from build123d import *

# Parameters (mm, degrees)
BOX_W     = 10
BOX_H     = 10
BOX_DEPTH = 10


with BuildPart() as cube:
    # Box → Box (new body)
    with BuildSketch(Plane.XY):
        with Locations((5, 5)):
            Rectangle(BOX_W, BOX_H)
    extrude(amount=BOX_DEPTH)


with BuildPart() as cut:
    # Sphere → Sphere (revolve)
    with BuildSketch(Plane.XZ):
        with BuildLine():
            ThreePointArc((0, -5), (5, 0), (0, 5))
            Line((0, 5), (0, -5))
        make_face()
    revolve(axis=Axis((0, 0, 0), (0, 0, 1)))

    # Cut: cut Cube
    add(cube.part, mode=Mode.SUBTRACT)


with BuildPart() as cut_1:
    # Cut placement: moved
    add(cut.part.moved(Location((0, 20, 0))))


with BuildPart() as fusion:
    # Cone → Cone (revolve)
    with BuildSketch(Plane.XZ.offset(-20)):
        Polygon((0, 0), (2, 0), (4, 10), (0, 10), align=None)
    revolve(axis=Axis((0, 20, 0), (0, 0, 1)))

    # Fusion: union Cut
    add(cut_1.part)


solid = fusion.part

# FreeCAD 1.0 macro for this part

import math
import FreeCAD as App
import Part
import Sketcher

V = App.Vector

doc = App.newDocument("Part")
params = doc.addObject("Spreadsheet::Sheet", "Params")
for row, (alias, value) in enumerate([
    ("sketch1_width", "10 mm"),
    ("pad1_length", "10 mm"),
    ("sketch2_radius", "5 mm"),
    ("revolution_angle", "360 deg"),
    ("sketch3_width", "2 mm"),
    ("sketch3_width2", "4 mm"),
    ("sketch3_height", "10 mm"),
    ("revolution2_angle", "360 deg"),
], start=1):
    params.set(f"A{row}", alias)
    params.set(f"B{row}", "=" + value)
    params.setAlias(f"B{row}", alias)

body = doc.addObject("PartDesign::Body", "Body")

# Sketch on XY plane
sketch1 = body.newObject("Sketcher::SketchObject", "Sketch")
sketch1.AttachmentSupport = (doc.getObject("XY_Plane"), [""])
sketch1.MapMode = "FlatFace"
sketch1.addGeometry([
    Part.LineSegment(V(0, 10, 0), V(0, 0, 0)),
    Part.LineSegment(V(0, 0, 0), V(10, 0, 0)),
    Part.LineSegment(V(10, 0, 0), V(10, 10, 0)),
    Part.LineSegment(V(10, 10, 0), V(0, 10, 0)),
], False)
sketch1.addConstraint([
    Sketcher.Constraint("Coincident", 0, 2, 1, 1),
    Sketcher.Constraint("Coincident", 1, 2, 2, 1),
    Sketcher.Constraint("Coincident", 2, 2, 3, 1),
    Sketcher.Constraint("Coincident", 3, 2, 0, 1),
    Sketcher.Constraint("Vertical", 0),
    Sketcher.Constraint("Horizontal", 1),
    Sketcher.Constraint("Vertical", 2),
    Sketcher.Constraint("Horizontal", 3),
    Sketcher.Constraint("Coincident", 0, 2, -1, 1),
    Sketcher.Constraint("Equal", 3, 0),
    Sketcher.Constraint("DistanceX", 1, 1, 1, 2, 10.0),
])
sketch1.setExpression("Constraints[10]", "Params.sketch1_width")
pad1 = body.newObject("PartDesign::Pad", "Pad")
pad1.Profile = sketch1
pad1.setExpression("Length", "Params.pad1_length")
body2 = doc.addObject("PartDesign::Body", "Body001")

# Sketch on XZ plane
sketch2 = body2.newObject("Sketcher::SketchObject", "Sketch001")
sketch2.AttachmentSupport = (doc.getObject("XZ_Plane001"), [""])
sketch2.MapMode = "FlatFace"
sketch2.addGeometry([
    Part.ArcOfCircle(Part.Circle(V(0, 0, 0), V(0, 0, 1), 5), math.radians(-90), math.radians(90)),
    Part.LineSegment(V(0, 5, 0), V(0, -5, 0)),
], False)
sketch2.addConstraint([
    Sketcher.Constraint("Coincident", 0, 1, 1, 2),
    Sketcher.Constraint("Coincident", 1, 1, 0, 2),
    Sketcher.Constraint("Vertical", 1),
    Sketcher.Constraint("Coincident", 0, 3, -1, 1),
    Sketcher.Constraint("PointOnObject", 0, 1, -2),
    Sketcher.Constraint("Radius", 0, 5.0),
])
sketch2.setExpression("Constraints[5]", "Params.sketch2_radius")
revolution = body2.newObject("PartDesign::Revolution", "Revolution")
revolution.Profile = sketch2
revolution.ReferenceAxis = (sketch2, ["V_Axis"])
revolution.setExpression("Angle", "Params.revolution_angle")
doc.recompute()

boolean = body2.newObject("PartDesign::Boolean", "Boolean")
boolean.Type = "Cut"
boolean.addObjects([body])
body3 = doc.addObject("PartDesign::Body", "Body002")
doc.recompute()

body2.Placement = App.Placement(V(0, 20, 0), App.Rotation(V(0, 0, 1), 0))
boolean2 = body3.newObject("PartDesign::Boolean", "Boolean001")
boolean2.Type = "Fuse"
boolean2.addObjects([body2])
body4 = doc.addObject("PartDesign::Body", "Body003")

# Sketch on XZ plane
sketch3 = body4.newObject("Sketcher::SketchObject", "Sketch002")
sketch3.AttachmentSupport = (doc.getObject("XZ_Plane003"), [""])
sketch3.MapMode = "FlatFace"
sketch3.AttachmentOffset = App.Placement(V(0, 0, -20), App.Rotation())
sketch3.addGeometry([
    Part.LineSegment(V(0, 0, 0), V(2, 0, 0)),
    Part.LineSegment(V(2, 0, 0), V(4, 10, 0)),
    Part.LineSegment(V(4, 10, 0), V(0, 10, 0)),
    Part.LineSegment(V(0, 10, 0), V(0, 0, 0)),
], False)
sketch3.addConstraint([
    Sketcher.Constraint("Coincident", 0, 2, 1, 1),
    Sketcher.Constraint("Coincident", 1, 2, 2, 1),
    Sketcher.Constraint("Coincident", 2, 2, 3, 1),
    Sketcher.Constraint("Coincident", 3, 2, 0, 1),
    Sketcher.Constraint("Horizontal", 0),
    Sketcher.Constraint("Horizontal", 2),
    Sketcher.Constraint("Vertical", 3),
    Sketcher.Constraint("Coincident", 3, 2, -1, 1),
    Sketcher.Constraint("DistanceX", 0, 1, 0, 2, 2.0),
    Sketcher.Constraint("DistanceX", 2, 2, 2, 1, 4.0),
    Sketcher.Constraint("DistanceY", 3, 2, 3, 1, 10.0),
])
sketch3.setExpression("Constraints[8]", "Params.sketch3_width")
sketch3.setExpression("Constraints[9]", "Params.sketch3_width2")
sketch3.setExpression("Constraints[10]", "Params.sketch3_height")
revolution2 = body4.newObject("PartDesign::Revolution", "Revolution001")
revolution2.Profile = sketch3
revolution2.ReferenceAxis = (sketch3, ["V_Axis"])
revolution2.setExpression("Angle", "Params.revolution2_angle")
doc.recompute()

boolean3 = body4.newObject("PartDesign::Boolean", "Boolean002")
boolean3.Type = "Fuse"
boolean3.addObjects([body3])

doc.recompute()
